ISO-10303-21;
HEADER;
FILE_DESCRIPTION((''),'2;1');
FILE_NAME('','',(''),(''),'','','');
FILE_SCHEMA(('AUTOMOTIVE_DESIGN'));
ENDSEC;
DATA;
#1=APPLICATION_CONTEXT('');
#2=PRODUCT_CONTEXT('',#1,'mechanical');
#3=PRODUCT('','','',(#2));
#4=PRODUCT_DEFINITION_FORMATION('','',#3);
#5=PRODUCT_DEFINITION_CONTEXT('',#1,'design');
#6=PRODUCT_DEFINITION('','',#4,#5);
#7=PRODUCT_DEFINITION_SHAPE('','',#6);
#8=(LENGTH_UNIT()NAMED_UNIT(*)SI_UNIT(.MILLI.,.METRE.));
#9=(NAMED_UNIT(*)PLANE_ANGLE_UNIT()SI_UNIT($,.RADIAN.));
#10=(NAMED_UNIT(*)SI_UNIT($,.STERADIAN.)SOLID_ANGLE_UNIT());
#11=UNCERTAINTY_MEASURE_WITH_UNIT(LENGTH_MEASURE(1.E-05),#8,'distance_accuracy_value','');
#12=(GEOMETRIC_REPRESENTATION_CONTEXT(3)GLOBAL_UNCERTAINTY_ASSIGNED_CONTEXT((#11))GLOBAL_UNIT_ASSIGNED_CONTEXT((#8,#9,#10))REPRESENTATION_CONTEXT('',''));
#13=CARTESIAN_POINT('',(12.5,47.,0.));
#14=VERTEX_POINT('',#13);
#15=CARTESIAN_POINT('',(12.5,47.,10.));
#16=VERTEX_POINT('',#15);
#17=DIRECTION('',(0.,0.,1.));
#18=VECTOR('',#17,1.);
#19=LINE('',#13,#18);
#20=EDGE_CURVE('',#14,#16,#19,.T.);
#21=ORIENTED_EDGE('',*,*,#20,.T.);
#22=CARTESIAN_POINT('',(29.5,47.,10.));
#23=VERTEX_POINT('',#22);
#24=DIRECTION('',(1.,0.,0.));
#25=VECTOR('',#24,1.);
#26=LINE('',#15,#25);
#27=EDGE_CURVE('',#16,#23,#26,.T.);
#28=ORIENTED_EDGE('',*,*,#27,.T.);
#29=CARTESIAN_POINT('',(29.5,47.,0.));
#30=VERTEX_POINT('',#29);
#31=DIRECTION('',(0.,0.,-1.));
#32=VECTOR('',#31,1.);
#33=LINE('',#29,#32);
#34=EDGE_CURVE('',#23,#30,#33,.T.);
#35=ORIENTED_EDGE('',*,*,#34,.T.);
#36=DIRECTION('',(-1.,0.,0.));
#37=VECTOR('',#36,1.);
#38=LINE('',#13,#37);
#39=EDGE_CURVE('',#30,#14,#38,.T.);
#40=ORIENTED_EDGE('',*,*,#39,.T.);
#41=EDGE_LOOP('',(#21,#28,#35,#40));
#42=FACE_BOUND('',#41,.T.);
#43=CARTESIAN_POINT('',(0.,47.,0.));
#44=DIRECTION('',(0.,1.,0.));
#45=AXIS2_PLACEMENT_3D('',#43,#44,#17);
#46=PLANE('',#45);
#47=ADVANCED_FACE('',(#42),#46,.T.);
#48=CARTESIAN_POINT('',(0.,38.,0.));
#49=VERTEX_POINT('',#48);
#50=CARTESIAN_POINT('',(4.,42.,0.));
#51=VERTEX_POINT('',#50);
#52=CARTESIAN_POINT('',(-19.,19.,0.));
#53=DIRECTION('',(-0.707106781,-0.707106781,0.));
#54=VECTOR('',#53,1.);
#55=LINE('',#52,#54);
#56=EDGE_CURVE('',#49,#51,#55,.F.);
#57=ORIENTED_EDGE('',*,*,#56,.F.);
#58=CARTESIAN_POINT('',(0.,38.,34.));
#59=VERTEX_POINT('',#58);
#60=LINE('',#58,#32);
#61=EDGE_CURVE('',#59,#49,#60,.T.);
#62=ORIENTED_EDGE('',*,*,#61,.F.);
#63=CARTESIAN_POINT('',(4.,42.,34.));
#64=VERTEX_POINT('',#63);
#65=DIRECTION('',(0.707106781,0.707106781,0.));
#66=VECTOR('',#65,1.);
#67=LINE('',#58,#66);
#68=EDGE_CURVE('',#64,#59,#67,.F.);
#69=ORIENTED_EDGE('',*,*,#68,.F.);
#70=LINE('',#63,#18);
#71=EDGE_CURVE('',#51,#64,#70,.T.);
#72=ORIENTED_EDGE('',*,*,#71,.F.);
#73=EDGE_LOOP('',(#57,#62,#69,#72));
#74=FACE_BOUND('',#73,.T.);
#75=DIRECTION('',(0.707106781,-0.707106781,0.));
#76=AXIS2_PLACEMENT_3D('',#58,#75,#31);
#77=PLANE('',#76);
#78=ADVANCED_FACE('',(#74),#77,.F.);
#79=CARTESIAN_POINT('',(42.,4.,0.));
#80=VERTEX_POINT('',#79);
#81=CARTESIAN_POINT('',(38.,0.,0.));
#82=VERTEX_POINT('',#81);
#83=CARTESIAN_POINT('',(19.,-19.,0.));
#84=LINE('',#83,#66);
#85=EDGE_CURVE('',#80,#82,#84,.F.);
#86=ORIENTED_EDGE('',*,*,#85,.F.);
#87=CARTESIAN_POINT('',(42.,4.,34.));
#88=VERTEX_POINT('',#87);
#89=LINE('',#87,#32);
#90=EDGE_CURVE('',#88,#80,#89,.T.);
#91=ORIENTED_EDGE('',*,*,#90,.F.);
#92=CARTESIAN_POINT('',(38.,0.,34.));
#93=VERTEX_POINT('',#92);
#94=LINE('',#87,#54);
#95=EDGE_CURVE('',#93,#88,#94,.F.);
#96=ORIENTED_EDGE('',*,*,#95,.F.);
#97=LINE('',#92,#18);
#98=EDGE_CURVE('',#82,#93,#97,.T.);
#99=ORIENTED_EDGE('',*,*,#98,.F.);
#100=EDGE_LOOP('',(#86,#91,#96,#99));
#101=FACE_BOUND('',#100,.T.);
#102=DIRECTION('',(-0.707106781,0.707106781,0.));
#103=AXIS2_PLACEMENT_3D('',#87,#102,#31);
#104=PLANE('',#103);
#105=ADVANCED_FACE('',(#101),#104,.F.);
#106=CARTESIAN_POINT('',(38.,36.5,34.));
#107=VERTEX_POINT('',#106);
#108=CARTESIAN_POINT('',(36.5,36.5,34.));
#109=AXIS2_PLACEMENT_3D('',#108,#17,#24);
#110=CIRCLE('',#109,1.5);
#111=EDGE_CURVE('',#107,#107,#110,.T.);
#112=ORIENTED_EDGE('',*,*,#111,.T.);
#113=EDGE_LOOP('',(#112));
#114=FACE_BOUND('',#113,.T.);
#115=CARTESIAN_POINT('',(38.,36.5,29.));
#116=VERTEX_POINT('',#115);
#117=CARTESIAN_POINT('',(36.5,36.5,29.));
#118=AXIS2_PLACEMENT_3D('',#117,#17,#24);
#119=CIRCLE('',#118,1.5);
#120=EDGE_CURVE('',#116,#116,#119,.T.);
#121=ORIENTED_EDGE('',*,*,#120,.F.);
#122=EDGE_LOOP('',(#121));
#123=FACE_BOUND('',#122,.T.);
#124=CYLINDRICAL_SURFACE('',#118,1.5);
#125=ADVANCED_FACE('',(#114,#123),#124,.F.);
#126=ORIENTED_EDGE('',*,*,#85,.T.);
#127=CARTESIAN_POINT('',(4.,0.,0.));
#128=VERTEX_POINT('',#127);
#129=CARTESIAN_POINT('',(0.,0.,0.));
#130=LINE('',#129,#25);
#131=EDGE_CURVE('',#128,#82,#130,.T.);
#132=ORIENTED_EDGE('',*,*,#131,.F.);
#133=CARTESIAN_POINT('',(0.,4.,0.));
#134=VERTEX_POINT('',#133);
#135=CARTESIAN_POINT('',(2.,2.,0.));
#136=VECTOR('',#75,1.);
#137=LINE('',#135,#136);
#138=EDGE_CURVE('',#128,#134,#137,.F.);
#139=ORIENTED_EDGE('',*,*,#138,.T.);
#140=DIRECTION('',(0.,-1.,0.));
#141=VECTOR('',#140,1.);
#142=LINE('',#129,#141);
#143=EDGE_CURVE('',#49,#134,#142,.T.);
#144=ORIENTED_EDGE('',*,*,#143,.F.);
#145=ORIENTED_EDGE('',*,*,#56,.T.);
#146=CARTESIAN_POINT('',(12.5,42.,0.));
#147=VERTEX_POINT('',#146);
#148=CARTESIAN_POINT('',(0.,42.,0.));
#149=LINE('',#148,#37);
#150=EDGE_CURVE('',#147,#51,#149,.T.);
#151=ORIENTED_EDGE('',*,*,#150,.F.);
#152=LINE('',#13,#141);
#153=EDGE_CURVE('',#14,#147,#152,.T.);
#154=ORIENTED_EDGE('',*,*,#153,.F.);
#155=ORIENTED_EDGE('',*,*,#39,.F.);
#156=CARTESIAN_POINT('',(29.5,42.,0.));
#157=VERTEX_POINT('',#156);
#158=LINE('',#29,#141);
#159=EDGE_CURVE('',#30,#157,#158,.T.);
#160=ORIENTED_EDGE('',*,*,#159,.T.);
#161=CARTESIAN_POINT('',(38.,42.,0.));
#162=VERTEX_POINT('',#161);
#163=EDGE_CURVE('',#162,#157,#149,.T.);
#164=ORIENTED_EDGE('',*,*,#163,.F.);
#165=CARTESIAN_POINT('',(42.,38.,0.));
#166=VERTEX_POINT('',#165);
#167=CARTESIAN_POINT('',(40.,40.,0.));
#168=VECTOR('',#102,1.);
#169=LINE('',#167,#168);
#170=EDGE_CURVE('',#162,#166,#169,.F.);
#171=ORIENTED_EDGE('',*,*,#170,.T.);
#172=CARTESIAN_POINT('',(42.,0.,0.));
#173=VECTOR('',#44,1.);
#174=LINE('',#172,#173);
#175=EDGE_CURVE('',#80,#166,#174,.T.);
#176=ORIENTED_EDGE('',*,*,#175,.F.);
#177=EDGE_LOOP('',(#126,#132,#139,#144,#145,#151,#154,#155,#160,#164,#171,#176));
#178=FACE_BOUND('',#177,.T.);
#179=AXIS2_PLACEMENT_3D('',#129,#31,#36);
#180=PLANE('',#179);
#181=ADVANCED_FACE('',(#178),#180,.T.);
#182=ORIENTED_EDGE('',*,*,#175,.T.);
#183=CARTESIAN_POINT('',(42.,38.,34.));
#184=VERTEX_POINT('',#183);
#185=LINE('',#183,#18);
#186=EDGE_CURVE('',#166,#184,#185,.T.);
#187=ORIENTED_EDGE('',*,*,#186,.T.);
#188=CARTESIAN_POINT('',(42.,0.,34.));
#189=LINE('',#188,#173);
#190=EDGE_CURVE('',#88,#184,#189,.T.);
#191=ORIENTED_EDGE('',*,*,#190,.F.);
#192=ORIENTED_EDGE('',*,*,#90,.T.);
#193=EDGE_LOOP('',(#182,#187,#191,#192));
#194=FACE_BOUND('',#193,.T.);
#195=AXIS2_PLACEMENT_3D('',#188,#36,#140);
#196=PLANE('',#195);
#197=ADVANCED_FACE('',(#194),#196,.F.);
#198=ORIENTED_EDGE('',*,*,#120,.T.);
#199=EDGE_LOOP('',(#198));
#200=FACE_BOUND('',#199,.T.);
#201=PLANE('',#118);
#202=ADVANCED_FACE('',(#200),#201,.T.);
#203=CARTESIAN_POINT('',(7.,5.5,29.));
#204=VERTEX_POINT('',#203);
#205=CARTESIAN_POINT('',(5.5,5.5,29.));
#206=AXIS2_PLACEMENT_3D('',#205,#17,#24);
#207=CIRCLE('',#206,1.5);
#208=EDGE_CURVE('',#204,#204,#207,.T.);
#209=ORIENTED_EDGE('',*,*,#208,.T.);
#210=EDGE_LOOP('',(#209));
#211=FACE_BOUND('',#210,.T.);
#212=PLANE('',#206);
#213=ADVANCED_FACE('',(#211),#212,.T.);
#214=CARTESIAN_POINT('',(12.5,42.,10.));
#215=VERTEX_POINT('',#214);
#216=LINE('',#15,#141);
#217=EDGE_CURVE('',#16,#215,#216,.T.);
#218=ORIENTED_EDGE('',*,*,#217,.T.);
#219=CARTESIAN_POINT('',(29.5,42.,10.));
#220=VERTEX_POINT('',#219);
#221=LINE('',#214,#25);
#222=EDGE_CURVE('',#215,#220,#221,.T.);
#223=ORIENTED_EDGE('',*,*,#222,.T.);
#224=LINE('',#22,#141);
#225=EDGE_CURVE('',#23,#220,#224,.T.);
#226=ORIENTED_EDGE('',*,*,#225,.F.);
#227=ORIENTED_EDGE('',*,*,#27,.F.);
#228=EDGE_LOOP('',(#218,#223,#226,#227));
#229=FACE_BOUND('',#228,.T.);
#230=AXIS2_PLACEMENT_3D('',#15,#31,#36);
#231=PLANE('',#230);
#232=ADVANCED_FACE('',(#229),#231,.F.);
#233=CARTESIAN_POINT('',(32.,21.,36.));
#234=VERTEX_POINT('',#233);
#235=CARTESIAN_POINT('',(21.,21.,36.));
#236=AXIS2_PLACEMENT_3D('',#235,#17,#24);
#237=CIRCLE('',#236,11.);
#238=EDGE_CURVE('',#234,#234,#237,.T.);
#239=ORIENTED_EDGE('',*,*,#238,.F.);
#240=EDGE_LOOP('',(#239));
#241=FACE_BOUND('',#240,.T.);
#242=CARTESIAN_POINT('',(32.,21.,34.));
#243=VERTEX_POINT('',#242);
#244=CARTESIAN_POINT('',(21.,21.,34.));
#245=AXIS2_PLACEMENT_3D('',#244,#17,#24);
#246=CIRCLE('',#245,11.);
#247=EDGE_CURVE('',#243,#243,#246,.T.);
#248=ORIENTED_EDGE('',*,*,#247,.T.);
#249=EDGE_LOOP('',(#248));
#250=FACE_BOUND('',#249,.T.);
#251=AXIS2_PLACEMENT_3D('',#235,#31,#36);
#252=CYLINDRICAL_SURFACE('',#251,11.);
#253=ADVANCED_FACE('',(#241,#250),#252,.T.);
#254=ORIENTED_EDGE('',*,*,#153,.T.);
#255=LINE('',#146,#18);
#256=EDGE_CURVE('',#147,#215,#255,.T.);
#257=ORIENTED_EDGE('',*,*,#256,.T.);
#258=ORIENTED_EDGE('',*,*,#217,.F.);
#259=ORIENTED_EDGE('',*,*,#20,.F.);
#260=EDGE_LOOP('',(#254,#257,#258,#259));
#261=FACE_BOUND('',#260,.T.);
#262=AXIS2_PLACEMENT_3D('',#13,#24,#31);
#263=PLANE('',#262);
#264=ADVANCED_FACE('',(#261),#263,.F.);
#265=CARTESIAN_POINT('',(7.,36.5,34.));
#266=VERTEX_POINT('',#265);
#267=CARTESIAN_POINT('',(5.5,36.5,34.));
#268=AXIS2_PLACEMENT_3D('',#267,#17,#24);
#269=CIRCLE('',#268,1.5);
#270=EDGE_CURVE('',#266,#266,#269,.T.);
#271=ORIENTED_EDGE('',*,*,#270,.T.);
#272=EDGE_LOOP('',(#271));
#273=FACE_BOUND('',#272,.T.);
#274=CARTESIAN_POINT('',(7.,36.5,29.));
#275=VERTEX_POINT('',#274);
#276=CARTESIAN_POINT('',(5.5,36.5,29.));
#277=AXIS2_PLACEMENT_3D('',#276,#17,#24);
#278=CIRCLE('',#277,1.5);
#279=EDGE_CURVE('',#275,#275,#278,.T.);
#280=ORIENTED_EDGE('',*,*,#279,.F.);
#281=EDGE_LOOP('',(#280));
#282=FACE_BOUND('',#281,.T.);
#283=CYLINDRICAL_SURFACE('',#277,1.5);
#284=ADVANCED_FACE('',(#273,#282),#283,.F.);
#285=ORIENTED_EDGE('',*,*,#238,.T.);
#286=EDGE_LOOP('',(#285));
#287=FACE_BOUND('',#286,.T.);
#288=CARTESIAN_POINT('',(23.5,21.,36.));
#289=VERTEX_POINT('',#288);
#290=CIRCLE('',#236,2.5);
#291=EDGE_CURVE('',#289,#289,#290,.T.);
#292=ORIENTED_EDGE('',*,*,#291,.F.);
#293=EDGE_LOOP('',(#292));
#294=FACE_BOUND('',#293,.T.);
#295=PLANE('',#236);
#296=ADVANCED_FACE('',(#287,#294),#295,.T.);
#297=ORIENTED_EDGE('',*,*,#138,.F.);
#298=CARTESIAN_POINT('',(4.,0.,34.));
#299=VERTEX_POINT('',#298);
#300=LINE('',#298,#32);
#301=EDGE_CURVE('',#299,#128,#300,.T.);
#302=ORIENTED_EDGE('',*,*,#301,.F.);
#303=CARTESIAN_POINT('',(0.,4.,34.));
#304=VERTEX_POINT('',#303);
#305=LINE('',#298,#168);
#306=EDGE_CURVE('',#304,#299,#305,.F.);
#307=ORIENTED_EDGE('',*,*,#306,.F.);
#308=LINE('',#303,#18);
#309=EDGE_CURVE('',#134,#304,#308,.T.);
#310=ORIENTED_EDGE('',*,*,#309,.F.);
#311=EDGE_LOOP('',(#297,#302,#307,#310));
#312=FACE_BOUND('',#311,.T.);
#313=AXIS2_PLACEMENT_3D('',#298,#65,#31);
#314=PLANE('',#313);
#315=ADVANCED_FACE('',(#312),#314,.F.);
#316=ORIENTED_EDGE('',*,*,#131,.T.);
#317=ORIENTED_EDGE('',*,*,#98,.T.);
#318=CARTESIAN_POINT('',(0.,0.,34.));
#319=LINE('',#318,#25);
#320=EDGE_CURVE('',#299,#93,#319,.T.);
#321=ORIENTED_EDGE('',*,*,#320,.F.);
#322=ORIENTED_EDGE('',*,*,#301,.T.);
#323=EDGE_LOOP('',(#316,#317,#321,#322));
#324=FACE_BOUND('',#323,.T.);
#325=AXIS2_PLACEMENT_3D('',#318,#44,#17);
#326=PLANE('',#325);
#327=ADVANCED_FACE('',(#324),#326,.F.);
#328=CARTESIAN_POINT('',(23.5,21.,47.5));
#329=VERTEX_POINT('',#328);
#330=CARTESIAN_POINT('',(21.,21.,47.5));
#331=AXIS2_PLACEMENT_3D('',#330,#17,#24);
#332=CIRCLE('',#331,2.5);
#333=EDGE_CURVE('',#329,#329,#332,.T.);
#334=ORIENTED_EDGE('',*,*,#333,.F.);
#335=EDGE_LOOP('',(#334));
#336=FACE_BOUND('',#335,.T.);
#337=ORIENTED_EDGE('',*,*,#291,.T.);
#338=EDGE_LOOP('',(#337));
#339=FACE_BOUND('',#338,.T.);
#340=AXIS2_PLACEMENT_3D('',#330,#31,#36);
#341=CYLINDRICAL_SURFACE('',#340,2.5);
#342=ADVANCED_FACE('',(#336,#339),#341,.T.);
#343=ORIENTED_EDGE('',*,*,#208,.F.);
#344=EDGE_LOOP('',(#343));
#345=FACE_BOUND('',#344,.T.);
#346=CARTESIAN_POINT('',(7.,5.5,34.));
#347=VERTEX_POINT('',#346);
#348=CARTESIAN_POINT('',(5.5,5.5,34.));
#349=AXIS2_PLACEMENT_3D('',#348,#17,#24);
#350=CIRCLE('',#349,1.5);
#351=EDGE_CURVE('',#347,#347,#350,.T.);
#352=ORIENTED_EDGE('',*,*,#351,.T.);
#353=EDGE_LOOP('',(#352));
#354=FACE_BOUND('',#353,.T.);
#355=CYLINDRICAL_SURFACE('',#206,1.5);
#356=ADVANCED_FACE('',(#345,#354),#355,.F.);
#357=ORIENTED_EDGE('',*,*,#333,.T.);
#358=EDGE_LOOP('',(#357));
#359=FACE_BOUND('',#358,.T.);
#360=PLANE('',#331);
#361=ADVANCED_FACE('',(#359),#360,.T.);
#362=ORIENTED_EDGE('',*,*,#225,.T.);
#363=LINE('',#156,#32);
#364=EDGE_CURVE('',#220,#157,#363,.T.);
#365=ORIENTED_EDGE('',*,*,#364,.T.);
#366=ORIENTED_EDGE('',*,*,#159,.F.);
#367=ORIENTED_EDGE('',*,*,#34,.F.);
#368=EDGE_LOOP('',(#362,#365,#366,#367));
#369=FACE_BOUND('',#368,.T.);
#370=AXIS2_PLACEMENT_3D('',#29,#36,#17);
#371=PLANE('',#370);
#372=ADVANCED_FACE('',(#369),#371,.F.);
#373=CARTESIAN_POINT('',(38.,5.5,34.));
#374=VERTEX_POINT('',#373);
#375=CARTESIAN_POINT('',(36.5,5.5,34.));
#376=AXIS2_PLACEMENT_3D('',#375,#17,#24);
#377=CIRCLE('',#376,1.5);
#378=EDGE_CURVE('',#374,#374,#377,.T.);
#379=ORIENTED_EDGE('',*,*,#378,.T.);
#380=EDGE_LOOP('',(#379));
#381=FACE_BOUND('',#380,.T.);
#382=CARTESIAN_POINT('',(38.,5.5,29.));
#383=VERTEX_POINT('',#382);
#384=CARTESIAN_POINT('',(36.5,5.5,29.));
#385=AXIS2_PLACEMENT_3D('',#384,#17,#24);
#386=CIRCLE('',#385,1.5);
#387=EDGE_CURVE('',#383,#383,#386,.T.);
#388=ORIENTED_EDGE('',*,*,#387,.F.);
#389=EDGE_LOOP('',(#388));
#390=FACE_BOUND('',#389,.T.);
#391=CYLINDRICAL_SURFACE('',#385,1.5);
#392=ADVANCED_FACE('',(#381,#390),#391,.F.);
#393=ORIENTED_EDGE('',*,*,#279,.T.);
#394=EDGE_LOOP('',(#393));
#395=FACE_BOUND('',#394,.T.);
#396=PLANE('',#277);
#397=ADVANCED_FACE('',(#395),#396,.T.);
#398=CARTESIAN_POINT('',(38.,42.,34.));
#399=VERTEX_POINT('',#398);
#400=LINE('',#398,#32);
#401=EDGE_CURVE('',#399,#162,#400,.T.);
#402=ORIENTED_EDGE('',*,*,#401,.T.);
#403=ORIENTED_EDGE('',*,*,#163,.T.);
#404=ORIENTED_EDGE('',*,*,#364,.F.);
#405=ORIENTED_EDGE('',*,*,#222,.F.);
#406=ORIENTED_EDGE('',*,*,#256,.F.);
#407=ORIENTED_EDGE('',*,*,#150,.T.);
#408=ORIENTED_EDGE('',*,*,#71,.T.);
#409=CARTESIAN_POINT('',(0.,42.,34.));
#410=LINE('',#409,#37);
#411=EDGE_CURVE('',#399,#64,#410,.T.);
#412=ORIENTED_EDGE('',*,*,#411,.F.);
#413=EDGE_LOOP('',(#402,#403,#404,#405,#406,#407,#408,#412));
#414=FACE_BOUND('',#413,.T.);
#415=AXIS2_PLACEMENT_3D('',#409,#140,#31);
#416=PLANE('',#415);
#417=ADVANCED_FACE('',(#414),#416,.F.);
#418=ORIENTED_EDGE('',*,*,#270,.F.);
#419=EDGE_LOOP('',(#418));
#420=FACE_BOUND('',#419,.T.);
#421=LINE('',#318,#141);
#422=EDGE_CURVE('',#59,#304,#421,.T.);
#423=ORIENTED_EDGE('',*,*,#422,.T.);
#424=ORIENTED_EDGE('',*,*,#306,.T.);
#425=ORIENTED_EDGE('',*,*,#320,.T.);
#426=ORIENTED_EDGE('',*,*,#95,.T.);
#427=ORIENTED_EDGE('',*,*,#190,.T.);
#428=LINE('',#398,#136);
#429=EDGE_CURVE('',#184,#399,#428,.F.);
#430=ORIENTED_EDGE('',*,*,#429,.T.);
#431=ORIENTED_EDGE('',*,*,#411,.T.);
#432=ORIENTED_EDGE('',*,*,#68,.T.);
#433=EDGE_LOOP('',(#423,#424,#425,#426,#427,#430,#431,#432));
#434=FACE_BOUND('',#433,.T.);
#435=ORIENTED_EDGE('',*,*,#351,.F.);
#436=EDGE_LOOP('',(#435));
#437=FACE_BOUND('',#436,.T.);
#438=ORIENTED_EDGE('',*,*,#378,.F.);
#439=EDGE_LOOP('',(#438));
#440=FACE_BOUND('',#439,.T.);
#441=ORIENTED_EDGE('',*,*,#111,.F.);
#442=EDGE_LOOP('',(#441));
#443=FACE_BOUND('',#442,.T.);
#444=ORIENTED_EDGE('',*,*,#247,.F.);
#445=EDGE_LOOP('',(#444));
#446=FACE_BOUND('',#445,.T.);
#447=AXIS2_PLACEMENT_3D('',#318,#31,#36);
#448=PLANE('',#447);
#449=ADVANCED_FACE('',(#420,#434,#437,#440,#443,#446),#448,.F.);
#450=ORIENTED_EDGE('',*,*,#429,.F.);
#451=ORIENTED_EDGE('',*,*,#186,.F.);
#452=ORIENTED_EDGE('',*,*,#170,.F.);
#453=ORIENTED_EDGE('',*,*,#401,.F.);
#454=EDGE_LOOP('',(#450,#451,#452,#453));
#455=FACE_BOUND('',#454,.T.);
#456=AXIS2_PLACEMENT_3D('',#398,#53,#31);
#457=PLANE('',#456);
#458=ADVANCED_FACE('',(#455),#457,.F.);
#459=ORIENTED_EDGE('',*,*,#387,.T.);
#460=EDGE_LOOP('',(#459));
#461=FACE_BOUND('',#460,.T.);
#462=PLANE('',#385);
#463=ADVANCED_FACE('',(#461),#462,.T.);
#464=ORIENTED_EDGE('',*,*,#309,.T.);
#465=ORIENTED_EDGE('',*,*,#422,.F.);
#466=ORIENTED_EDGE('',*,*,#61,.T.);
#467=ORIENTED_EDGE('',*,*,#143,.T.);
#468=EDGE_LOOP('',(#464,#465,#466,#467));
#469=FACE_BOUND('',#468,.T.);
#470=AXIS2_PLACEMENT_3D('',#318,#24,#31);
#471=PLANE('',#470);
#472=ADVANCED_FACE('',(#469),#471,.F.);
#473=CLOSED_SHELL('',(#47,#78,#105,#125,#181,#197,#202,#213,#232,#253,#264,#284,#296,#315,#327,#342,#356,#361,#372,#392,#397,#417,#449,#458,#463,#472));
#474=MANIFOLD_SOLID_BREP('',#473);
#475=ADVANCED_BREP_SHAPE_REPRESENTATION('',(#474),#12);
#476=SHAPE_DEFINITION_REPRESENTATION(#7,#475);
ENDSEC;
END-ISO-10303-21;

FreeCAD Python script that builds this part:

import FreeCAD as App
import Part
import Sketcher
from FreeCAD import Vector


def edges_at(feature, points):
    """Names of the edges that pass closest to the given points."""
    edges = feature.Shape.Edges
    near = lambda p: min(range(len(edges)), key=lambda i: edges[i].distToShape(Part.Vertex(*p))[0])
    return sorted({f"Edge{near(p) + 1}" for p in points})

doc = App.newDocument("Part")
body = doc.addObject("PartDesign::Body", "Body")

sketch1 = body.newObject("Sketcher::SketchObject", "Sketch")
sketch1.AttachmentSupport = (doc.getObject("XY_Plane"), [""])
sketch1.MapMode = "FlatFace"
sketch1.addGeometry([
    Part.LineSegment(Vector(0, 42, 0), Vector(0, 0, 0)),
    Part.LineSegment(Vector(0, 0, 0), Vector(42, 0, 0)),
    Part.LineSegment(Vector(42, 0, 0), Vector(42, 42, 0)),
    Part.LineSegment(Vector(42, 42, 0), Vector(0, 42, 0)),
], False)
sketch1.addConstraint([
    Sketcher.Constraint("Coincident", 0, 2, 1, 1),
    Sketcher.Constraint("Coincident", 1, 2, 2, 1),
    Sketcher.Constraint("Coincident", 2, 2, 3, 1),
    Sketcher.Constraint("Coincident", 3, 2, 0, 1),
    Sketcher.Constraint("Vertical", 0),
    Sketcher.Constraint("Horizontal", 1),
    Sketcher.Constraint("Vertical", 2),
    Sketcher.Constraint("Horizontal", 3),
    Sketcher.Constraint("Coincident", 0, 2, -1, 1),
    Sketcher.Constraint("Equal", 3, 0),
    Sketcher.Constraint("DistanceX", 1, 1, 1, 2, 42.0),
])
pad1 = body.newObject("PartDesign::Pad", "Pad")
pad1.Profile = sketch1
pad1.Length = 34

sketch2 = body.newObject("Sketcher::SketchObject", "Sketch001")
sketch2.AttachmentSupport = (doc.getObject("XY_Plane"), [""])
sketch2.MapMode = "FlatFace"
sketch2.AttachmentOffset = App.Placement(Vector(0, 0, 34), App.Rotation())
sketch2.addGeometry(Part.Circle(Vector(21, 21, 0), Vector(0, 0, 1), 11), False)
sketch2.addConstraint([
    Sketcher.Constraint("Diameter", 0, 22.0),
    Sketcher.Constraint("DistanceX", -1, 1, 0, 3, 21.0),
    Sketcher.Constraint("DistanceY", -1, 1, 0, 3, 21.0),
])
pad2 = body.newObject("PartDesign::Pad", "Pad001")
pad2.Profile = sketch2
pad2.Length = 2

sketch3 = body.newObject("Sketcher::SketchObject", "Sketch002")
sketch3.AttachmentSupport = (doc.getObject("XY_Plane"), [""])
sketch3.MapMode = "FlatFace"
sketch3.AttachmentOffset = App.Placement(Vector(0, 0, 36), App.Rotation())
sketch3.addGeometry(Part.Circle(Vector(21, 21, 0), Vector(0, 0, 1), 2.5), False)
sketch3.addConstraint([
    Sketcher.Constraint("Diameter", 0, 5.0),
    Sketcher.Constraint("DistanceX", -1, 1, 0, 3, 21.0),
    Sketcher.Constraint("DistanceY", -1, 1, 0, 3, 21.0),
])
pad3 = body.newObject("PartDesign::Pad", "Pad002")
pad3.Profile = sketch3
pad3.Length = 11.5
doc.recompute()

chamfer = body.newObject("PartDesign::Chamfer", "Chamfer")
chamfer.Base = (pad3, edges_at(pad3, [
    (0, 42, 17),
    (42, 42, 17),
    (42, 0, 17),
    (0, 0, 17),
]))
chamfer.Size = 4

sketch4 = body.newObject("Sketcher::SketchObject", "Sketch003")
sketch4.AttachmentSupport = (doc.getObject("XZ_Plane"), [""])
sketch4.MapMode = "FlatFace"
sketch4.AttachmentOffset = App.Placement(Vector(0, 0, -42), App.Rotation())
sketch4.addGeometry([
    Part.LineSegment(Vector(12, 0, 0), Vector(12, 10, 0)),
    Part.LineSegment(Vector(12, 10, 0), Vector(30, 10, 0)),
    Part.LineSegment(Vector(30, 10, 0), Vector(30, 0, 0)),
    Part.LineSegment(Vector(30, 0, 0), Vector(12, 0, 0)),
], False)
sketch4.addConstraint([
    Sketcher.Constraint("Coincident", 0, 2, 1, 1),
    Sketcher.Constraint("Coincident", 1, 2, 2, 1),
    Sketcher.Constraint("Coincident", 2, 2, 3, 1),
    Sketcher.Constraint("Coincident", 3, 2, 0, 1),
    Sketcher.Constraint("Vertical", 0),
    Sketcher.Constraint("Horizontal", 1),
    Sketcher.Constraint("Vertical", 2),
    Sketcher.Constraint("Horizontal", 3),
    Sketcher.Constraint("PointOnObject", 2, 2, -1),
    Sketcher.Constraint("DistanceX", 1, 1, 1, 2, 17.0),
    Sketcher.Constraint("DistanceY", 0, 1, 0, 2, 10.0),
    Sketcher.Constraint("DistanceX", -1, 1, 0, 2, 12.5),
])
pad4 = body.newObject("PartDesign::Pad", "Pad003")
pad4.Profile = sketch4
pad4.Length = 5
pad4.Reversed = True

sketch5 = body.newObject("Sketcher::SketchObject", "Sketch004")
sketch5.AttachmentSupport = (doc.getObject("XY_Plane"), [""])
sketch5.MapMode = "FlatFace"
sketch5.AttachmentOffset = App.Placement(Vector(0, 0, 34), App.Rotation())
sketch5.addGeometry([
    Part.Circle(Vector(5.5, 36.5, 0), Vector(0, 0, 1), 1.5),
    Part.Circle(Vector(36.5, 36.5, 0), Vector(0, 0, 1), 1.5),
    Part.Circle(Vector(36.5, 5.5, 0), Vector(0, 0, 1), 1.5),
    Part.Circle(Vector(5.5, 5.5, 0), Vector(0, 0, 1), 1.5),
], False)
sketch5.addConstraint([
    Sketcher.Constraint("Equal", 0, 1),
    Sketcher.Constraint("Equal", 1, 2),
    Sketcher.Constraint("Equal", 2, 3),
    Sketcher.Constraint("Horizontal", 0, 3, 1, 3),
    Sketcher.Constraint("Horizontal", 2, 3, 3, 3),
    Sketcher.Constraint("Vertical", 1, 3, 2, 3),
    Sketcher.Constraint("Vertical", 0, 3, 3, 3),
    Sketcher.Constraint("Diameter", 0, 3.0),
    Sketcher.Constraint("DistanceX", 0, 3, 1, 3, 31.0),
    Sketcher.Constraint("DistanceY", 2, 3, 1, 3, 31.0),
    Sketcher.Constraint("DistanceX", -1, 1, 0, 3, 5.5),
    Sketcher.Constraint("DistanceY", -1, 1, 0, 3, 36.5),
])
pocket1 = body.newObject("PartDesign::Pocket", "Pocket")
pocket1.Profile = sketch5
pocket1.Length = 5

doc.recompute()
